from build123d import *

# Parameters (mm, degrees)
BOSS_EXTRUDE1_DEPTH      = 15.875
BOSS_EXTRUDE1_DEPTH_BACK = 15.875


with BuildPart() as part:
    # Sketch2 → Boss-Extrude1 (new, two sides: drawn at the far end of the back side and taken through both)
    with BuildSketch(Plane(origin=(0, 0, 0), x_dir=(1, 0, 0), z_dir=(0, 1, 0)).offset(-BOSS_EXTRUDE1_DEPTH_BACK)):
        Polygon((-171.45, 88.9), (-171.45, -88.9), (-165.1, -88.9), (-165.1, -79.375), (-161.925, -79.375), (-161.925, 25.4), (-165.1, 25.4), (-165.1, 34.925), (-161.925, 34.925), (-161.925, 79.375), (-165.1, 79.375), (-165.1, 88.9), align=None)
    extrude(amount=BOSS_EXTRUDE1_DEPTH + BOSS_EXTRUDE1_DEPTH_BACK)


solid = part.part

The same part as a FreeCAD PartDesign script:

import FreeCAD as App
import Part
import Sketcher
Q = App.Units.Quantity

doc = App.newDocument("Part")
body = doc.addObject("PartDesign::Body", "Body")

# Sketch on XZ plane
sketch1 = body.newObject("Sketcher::SketchObject", "Sketch")
sketch1.AttachmentSupport = (doc.getObject("XZ_Plane"), [""])
sketch1.MapMode = "FlatFace"
sketch1.addGeometry([
    Part.LineSegment(App.Vector(-171.4, -88.9, 0), App.Vector(-171.4, 88.9, 0)),  # 0
    Part.LineSegment(App.Vector(-171.4, 88.9, 0), App.Vector(-165.1, 88.9, 0)),  # 1
    Part.LineSegment(App.Vector(-165.1, 88.9, 0), App.Vector(-165.1, 79.4, 0)),  # 2
    Part.LineSegment(App.Vector(-165.1, 79.4, 0), App.Vector(-161.9, 79.4, 0)),  # 3
    Part.LineSegment(App.Vector(-161.9, 79.4, 0), App.Vector(-161.9, -25.4, 0)),  # 4
    Part.LineSegment(App.Vector(-161.9, -25.4, 0), App.Vector(-165.1, -25.4, 0)),  # 5
    Part.LineSegment(App.Vector(-165.1, -25.4, 0), App.Vector(-165.1, -34.9, 0)),  # 6
    Part.LineSegment(App.Vector(-165.1, -34.9, 0), App.Vector(-161.9, -34.9, 0)),  # 7
    Part.LineSegment(App.Vector(-161.9, -34.9, 0), App.Vector(-161.9, -79.4, 0)),  # 8
    Part.LineSegment(App.Vector(-161.9, -79.4, 0), App.Vector(-165.1, -79.4, 0)),  # 9
    Part.LineSegment(App.Vector(-165.1, -79.4, 0), App.Vector(-165.1, -88.9, 0)),  # 10
    Part.LineSegment(App.Vector(-165.1, -88.9, 0), App.Vector(-171.4, -88.9, 0)),  # 11
], False)
sketch1.addConstraint([
    Sketcher.Constraint("Coincident", 0, 2, 1, 1),
    Sketcher.Constraint("Coincident", 1, 2, 2, 1),
    Sketcher.Constraint("Coincident", 2, 2, 3, 1),
    Sketcher.Constraint("Coincident", 3, 2, 4, 1),
    Sketcher.Constraint("Coincident", 4, 2, 5, 1),
    Sketcher.Constraint("Coincident", 5, 2, 6, 1),
    Sketcher.Constraint("Coincident", 6, 2, 7, 1),
    Sketcher.Constraint("Coincident", 7, 2, 8, 1),
    Sketcher.Constraint("Coincident", 8, 2, 9, 1),
    Sketcher.Constraint("Coincident", 9, 2, 10, 1),
    Sketcher.Constraint("Coincident", 10, 2, 11, 1),
    Sketcher.Constraint("Coincident", 11, 2, 0, 1),
    Sketcher.Constraint("Vertical", 0),
    Sketcher.Constraint("Horizontal", 1),
    Sketcher.Constraint("Vertical", 2),
    Sketcher.Constraint("Horizontal", 3),
    Sketcher.Constraint("Vertical", 4),
    Sketcher.Constraint("Horizontal", 5),
    Sketcher.Constraint("Vertical", 6),
    Sketcher.Constraint("Horizontal", 7),
    Sketcher.Constraint("Vertical", 8),
    Sketcher.Constraint("Horizontal", 9),
    Sketcher.Constraint("Vertical", 10),
    Sketcher.Constraint("Horizontal", 11),
    Sketcher.Constraint("Symmetric", 3, 2, 8, 2, -1),
    Sketcher.Constraint("Symmetric", 1, 2, 10, 2, -1),
    Sketcher.Constraint("Vertical", 2, 2, 5, 2),
    Sketcher.Constraint("Equal", 2, 6),
    Sketcher.Constraint("DistanceY", 0, 1, 0, 2, Q("7 in")),
    Sketcher.Constraint("DistanceY", 4, 2, -1, 1, Q("1 in")),
    Sketcher.Constraint("DistanceX", 1, 1, 1, 2, Q("0.25 in")),
    Sketcher.Constraint("DistanceY", 8, 2, 8, 1, Q("1.75 in")),
    Sketcher.Constraint("DistanceX", 1, 2, -1, 1, Q("6.5 in")),
    Sketcher.Constraint("DistanceX", 3, 1, 3, 2, Q("0.125 in")),
])
pad1 = body.newObject("PartDesign::Pad", "Pad")
pad1.Profile = sketch1
pad1.Type = "TwoLengths"
pad1.Length = Q("0.625 in")
pad1.Length2 = Q("0.625 in")
pad1.Reversed = True

doc.recompute()
